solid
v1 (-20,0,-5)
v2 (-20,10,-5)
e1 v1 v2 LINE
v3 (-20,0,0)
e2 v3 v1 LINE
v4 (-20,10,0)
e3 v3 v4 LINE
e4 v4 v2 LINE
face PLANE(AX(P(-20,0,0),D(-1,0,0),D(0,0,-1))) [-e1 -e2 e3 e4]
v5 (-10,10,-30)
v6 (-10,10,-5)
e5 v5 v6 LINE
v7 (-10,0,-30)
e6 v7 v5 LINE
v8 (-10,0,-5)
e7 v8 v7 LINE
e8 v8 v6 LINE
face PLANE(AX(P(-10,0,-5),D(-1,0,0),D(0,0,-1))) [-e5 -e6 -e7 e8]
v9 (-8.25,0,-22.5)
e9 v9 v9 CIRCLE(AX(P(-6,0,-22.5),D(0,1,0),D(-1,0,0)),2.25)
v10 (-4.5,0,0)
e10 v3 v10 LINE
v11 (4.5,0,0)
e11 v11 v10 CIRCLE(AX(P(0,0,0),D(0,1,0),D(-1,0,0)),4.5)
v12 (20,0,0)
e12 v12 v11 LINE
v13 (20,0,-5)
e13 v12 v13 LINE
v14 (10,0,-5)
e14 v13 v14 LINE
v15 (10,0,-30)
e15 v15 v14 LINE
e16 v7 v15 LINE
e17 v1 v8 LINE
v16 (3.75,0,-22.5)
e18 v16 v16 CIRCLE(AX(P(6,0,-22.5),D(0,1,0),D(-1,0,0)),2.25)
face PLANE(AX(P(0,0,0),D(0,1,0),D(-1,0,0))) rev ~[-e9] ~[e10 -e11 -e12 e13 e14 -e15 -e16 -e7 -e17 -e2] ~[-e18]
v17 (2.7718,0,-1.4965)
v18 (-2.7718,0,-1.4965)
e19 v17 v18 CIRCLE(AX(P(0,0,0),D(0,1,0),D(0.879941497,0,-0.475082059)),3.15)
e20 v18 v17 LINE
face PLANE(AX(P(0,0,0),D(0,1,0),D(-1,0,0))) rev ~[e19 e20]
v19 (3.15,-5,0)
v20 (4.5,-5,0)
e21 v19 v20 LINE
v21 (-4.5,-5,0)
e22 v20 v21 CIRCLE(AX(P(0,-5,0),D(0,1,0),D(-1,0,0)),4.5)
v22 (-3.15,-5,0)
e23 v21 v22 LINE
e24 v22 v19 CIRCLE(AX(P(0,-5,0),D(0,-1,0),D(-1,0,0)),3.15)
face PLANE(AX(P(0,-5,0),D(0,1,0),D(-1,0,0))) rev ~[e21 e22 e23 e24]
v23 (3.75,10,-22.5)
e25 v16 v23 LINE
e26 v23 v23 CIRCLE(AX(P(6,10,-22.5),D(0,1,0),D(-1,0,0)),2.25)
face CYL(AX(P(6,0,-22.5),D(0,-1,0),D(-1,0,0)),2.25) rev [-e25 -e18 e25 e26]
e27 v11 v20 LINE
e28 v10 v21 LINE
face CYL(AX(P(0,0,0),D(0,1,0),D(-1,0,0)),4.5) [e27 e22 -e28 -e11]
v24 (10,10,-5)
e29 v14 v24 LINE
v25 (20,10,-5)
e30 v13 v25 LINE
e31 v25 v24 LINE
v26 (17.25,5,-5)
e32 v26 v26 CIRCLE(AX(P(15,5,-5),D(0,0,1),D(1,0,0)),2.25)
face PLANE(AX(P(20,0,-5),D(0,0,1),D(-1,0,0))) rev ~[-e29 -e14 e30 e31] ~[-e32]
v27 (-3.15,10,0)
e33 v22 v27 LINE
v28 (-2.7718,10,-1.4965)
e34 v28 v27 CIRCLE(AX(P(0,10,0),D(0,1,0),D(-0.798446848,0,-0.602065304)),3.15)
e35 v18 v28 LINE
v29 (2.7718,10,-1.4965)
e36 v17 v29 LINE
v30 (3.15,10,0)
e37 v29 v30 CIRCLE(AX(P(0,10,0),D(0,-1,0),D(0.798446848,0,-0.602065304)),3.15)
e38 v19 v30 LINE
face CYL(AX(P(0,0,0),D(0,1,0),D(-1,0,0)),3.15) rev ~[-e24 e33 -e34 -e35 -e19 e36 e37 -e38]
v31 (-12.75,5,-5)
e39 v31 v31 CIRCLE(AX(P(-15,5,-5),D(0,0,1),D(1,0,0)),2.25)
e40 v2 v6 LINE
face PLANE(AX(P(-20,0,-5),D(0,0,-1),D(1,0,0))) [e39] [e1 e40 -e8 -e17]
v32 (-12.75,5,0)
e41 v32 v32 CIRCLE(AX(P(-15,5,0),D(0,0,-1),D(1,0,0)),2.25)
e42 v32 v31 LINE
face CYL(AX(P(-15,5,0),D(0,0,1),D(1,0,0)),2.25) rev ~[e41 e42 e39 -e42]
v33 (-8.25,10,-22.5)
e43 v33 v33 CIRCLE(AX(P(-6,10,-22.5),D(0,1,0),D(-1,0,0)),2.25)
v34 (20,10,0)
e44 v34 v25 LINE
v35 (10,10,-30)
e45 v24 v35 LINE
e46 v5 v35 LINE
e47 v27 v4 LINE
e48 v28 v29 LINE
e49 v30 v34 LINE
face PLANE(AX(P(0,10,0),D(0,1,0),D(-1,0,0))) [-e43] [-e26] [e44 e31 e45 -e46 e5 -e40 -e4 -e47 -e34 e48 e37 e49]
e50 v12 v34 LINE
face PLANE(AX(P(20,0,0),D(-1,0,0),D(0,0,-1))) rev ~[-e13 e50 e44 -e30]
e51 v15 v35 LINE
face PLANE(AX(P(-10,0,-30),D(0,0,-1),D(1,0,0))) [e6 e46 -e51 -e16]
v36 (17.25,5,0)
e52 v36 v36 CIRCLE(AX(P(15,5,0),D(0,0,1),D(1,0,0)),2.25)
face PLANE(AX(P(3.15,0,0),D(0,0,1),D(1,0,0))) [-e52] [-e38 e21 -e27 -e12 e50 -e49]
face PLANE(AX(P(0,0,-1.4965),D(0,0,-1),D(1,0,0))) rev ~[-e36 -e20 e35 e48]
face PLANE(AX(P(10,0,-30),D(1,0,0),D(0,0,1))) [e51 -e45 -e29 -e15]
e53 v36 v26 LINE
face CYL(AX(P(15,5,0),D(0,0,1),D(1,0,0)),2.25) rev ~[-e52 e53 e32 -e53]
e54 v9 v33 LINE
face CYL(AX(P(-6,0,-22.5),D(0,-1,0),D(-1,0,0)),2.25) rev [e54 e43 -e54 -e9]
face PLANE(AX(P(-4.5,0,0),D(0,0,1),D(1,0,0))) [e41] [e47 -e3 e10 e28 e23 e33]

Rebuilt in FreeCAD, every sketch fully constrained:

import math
import FreeCAD as App
import Part
import Sketcher

doc = App.newDocument("Part")
body = doc.addObject("PartDesign::Body", "Body")

sketch1 = body.newObject("Sketcher::SketchObject", "Sketch")
sketch1.AttachmentSupport = (doc.getObject("XZ_Plane"), [""])
sketch1.MapMode = "FlatFace"
sketch1.addGeometry([
    Part.ArcOfCircle(Part.Circle(App.Vector(0, 0, 0), App.Vector(0, 0, 1), 3.1), math.radians(180), math.radians(217)),
    Part.LineSegment(App.Vector(-2.5, -1.9, 0), App.Vector(2.5, -1.9, 0)),
    Part.ArcOfCircle(Part.Circle(App.Vector(0, 0, 0), App.Vector(0, 0, 1), 3.1), math.radians(-37), math.radians(0)),
    Part.LineSegment(App.Vector(3.1, 0, 0), App.Vector(20, 0, 0)),
    Part.LineSegment(App.Vector(20, 0, 0), App.Vector(20, -5, 0)),
    Part.LineSegment(App.Vector(20, -5, 0), App.Vector(10, -5, 0)),
    Part.LineSegment(App.Vector(10, -5, 0), App.Vector(10, -30, 0)),
    Part.LineSegment(App.Vector(10, -30, 0), App.Vector(-10, -30, 0)),
    Part.LineSegment(App.Vector(-10, -30, 0), App.Vector(-10, -5, 0)),
    Part.LineSegment(App.Vector(-10, -5, 0), App.Vector(-20, -5, 0)),
    Part.LineSegment(App.Vector(-20, -5, 0), App.Vector(-20, 0, 0)),
    Part.LineSegment(App.Vector(-20, 0, 0), App.Vector(-3.1, 0, 0)),
    Part.Circle(App.Vector(-6, -22.5, 0), App.Vector(0, 0, 1), 2.2),
    Part.Circle(App.Vector(6, -22.5, 0), App.Vector(0, 0, 1), 2.2),
], False)
sketch1.addConstraint([
    Sketcher.Constraint("Coincident", 0, 2, 1, 1),
    Sketcher.Constraint("Coincident", 1, 2, 2, 1),
    Sketcher.Constraint("Coincident", 2, 2, 3, 1),
    Sketcher.Constraint("Coincident", 3, 2, 4, 1),
    Sketcher.Constraint("Coincident", 4, 2, 5, 1),
    Sketcher.Constraint("Coincident", 5, 2, 6, 1),
    Sketcher.Constraint("Coincident", 6, 2, 7, 1),
    Sketcher.Constraint("Coincident", 7, 2, 8, 1),
    Sketcher.Constraint("Coincident", 8, 2, 9, 1),
    Sketcher.Constraint("Coincident", 9, 2, 10, 1),
    Sketcher.Constraint("Coincident", 10, 2, 11, 1),
    Sketcher.Constraint("Coincident", 11, 2, 0, 1),
    Sketcher.Constraint("Horizontal", 1),
    Sketcher.Constraint("Horizontal", 3),
    Sketcher.Constraint("Vertical", 4),
    Sketcher.Constraint("Horizontal", 5),
    Sketcher.Constraint("Vertical", 6),
    Sketcher.Constraint("Horizontal", 7),
    Sketcher.Constraint("Vertical", 8),
    Sketcher.Constraint("Horizontal", 9),
    Sketcher.Constraint("Vertical", 10),
    Sketcher.Constraint("Horizontal", 11),
    Sketcher.Constraint("Coincident", 0, 3, -1, 1),
    Sketcher.Constraint("Coincident", 2, 3, -1, 1),
    Sketcher.Constraint("Equal", 0, 2),
    Sketcher.Constraint("Equal", 12, 13),
    Sketcher.Constraint("Symmetric", 3, 2, 10, 2, -1, 1),
    Sketcher.Constraint("Symmetric", 12, 3, 13, 3, -2),
    Sketcher.Constraint("Symmetric", 5, 2, 8, 2, -2),
    Sketcher.Constraint("PointOnObject", 2, 2, -1),
    Sketcher.Constraint("Diameter", 12, 4.5),
    Sketcher.Constraint("DistanceX", 5, 2, 5, 1, 10.0),
    Sketcher.Constraint("DistanceY", 4, 2, 4, 1, 5.0),
    Sketcher.Constraint("Radius", 0, 3.15),
    Sketcher.Constraint("DistanceX", -1, 1, 5, 2, 10.0),
    Sketcher.Constraint("DistanceY", 6, 2, 6, 1, 25.0),
    Sketcher.Constraint("DistanceX", 12, 3, -1, 1, 6.0),
    Sketcher.Constraint("DistanceY", 12, 3, -1, 1, 22.5),
    Sketcher.Constraint("DistanceX", 1, 1, 1, 2, 5.0302),
])
pad1 = body.newObject("PartDesign::Pad", "Pad")
pad1.Profile = sketch1
pad1.Length = 10
pad1.Reversed = True

sketch2 = body.newObject("Sketcher::SketchObject", "Sketch001")
sketch2.AttachmentSupport = (doc.getObject("XZ_Plane"), [""])
sketch2.MapMode = "FlatFace"
sketch2.addGeometry([
    Part.LineSegment(App.Vector(-4.5, 0, 0), App.Vector(-3.1, 0, 0)),
    Part.ArcOfCircle(Part.Circle(App.Vector(0, 0, 0), App.Vector(0, 0, 1), 3.1), math.radians(180), math.radians(360)),
    Part.LineSegment(App.Vector(3.1, 0, 0), App.Vector(4.5, 0, 0)),
    Part.ArcOfCircle(Part.Circle(App.Vector(0, 0, 0), App.Vector(0, 0, 1), 4.5), math.radians(180), math.radians(360)),
], False)
sketch2.addConstraint([
    Sketcher.Constraint("Coincident", 0, 2, 1, 1),
    Sketcher.Constraint("Coincident", 1, 2, 2, 1),
    Sketcher.Constraint("Coincident", 2, 2, 3, 2),
    Sketcher.Constraint("Coincident", 3, 1, 0, 1),
    Sketcher.Constraint("Horizontal", 0),
    Sketcher.Constraint("Horizontal", 2),
    Sketcher.Constraint("Coincident", 1, 3, -1, 1),
    Sketcher.Constraint("Coincident", 3, 3, -1, 1),
    Sketcher.Constraint("PointOnObject", 0, 2, -1),
    Sketcher.Constraint("PointOnObject", 1, 2, -1),
    Sketcher.Constraint("Radius", 3, 4.5),
    Sketcher.Constraint("Radius", 1, 3.15),
])
pad2 = body.newObject("PartDesign::Pad", "Pad001")
pad2.Profile = sketch2
pad2.Length = 5

sketch3 = body.newObject("Sketcher::SketchObject", "Sketch002")
sketch3.AttachmentSupport = (doc.getObject("XY_Plane"), [""])
sketch3.MapMode = "FlatFace"
sketch3.addGeometry([
    Part.Circle(App.Vector(-15, 5, 0), App.Vector(0, 0, 1), 2.2),
    Part.Circle(App.Vector(15, 5, 0), App.Vector(0, 0, 1), 2.2),
], False)
sketch3.addConstraint([
    Sketcher.Constraint("Equal", 0, 1),
    Sketcher.Constraint("Symmetric", 0, 3, 1, 3, -2),
    Sketcher.Constraint("Diameter", 0, 4.5),
    Sketcher.Constraint("DistanceY", -1, 1, 0, 3, 5.0),
    Sketcher.Constraint("DistanceX", 0, 3, -1, 1, 15.0),
])
pocket1 = body.newObject("PartDesign::Pocket", "Pocket")
pocket1.Profile = sketch3
pocket1.Length = 10

sketch4 = body.newObject("Sketcher::SketchObject", "Sketch003")
sketch4.AttachmentSupport = (doc.getObject("XZ_Plane"), [""])
sketch4.MapMode = "FlatFace"
sketch4.addGeometry([
    Part.ArcOfCircle(Part.Circle(App.Vector(0, 0, 0), App.Vector(0, 0, 1), 3.15), math.radians(-151.64), math.radians(-142.98)),
    Part.LineSegment(App.Vector(-2.77, -1.5, 0), App.Vector(2.77, -1.5, 0)),
    Part.ArcOfCircle(Part.Circle(App.Vector(0, 0, 0), App.Vector(0, 0, 1), 3.15), math.radians(-37.02), math.radians(-28.36)),
    Part.LineSegment(App.Vector(2.52, -1.9, 0), App.Vector(-2.52, -1.9, 0)),
], False)
sketch4.addConstraint([
    Sketcher.Constraint("Coincident", 0, 1, 1, 1),
    Sketcher.Constraint("Coincident", 1, 2, 2, 2),
    Sketcher.Constraint("Coincident", 2, 1, 3, 1),
    Sketcher.Constraint("Coincident", 3, 2, 0, 2),
    Sketcher.Constraint("Horizontal", 1),
    Sketcher.Constraint("Horizontal", 3),
    Sketcher.Constraint("Coincident", 0, 3, -1, 1),
    Sketcher.Constraint("Coincident", 2, 3, -1, 1),
    Sketcher.Constraint("Equal", 0, 2),
    Sketcher.Constraint("Radius", 0, 3.15),
    Sketcher.Constraint("DistanceY", 2, 1, 1, 2, 0.4),
    Sketcher.Constraint("DistanceX", 1, 1, 1, 2, 5.5436),
])
pad3 = body.newObject("PartDesign::Pad", "Pad002")
pad3.Profile = sketch4
pad3.Length = 10
pad3.Reversed = True

doc.recompute()
